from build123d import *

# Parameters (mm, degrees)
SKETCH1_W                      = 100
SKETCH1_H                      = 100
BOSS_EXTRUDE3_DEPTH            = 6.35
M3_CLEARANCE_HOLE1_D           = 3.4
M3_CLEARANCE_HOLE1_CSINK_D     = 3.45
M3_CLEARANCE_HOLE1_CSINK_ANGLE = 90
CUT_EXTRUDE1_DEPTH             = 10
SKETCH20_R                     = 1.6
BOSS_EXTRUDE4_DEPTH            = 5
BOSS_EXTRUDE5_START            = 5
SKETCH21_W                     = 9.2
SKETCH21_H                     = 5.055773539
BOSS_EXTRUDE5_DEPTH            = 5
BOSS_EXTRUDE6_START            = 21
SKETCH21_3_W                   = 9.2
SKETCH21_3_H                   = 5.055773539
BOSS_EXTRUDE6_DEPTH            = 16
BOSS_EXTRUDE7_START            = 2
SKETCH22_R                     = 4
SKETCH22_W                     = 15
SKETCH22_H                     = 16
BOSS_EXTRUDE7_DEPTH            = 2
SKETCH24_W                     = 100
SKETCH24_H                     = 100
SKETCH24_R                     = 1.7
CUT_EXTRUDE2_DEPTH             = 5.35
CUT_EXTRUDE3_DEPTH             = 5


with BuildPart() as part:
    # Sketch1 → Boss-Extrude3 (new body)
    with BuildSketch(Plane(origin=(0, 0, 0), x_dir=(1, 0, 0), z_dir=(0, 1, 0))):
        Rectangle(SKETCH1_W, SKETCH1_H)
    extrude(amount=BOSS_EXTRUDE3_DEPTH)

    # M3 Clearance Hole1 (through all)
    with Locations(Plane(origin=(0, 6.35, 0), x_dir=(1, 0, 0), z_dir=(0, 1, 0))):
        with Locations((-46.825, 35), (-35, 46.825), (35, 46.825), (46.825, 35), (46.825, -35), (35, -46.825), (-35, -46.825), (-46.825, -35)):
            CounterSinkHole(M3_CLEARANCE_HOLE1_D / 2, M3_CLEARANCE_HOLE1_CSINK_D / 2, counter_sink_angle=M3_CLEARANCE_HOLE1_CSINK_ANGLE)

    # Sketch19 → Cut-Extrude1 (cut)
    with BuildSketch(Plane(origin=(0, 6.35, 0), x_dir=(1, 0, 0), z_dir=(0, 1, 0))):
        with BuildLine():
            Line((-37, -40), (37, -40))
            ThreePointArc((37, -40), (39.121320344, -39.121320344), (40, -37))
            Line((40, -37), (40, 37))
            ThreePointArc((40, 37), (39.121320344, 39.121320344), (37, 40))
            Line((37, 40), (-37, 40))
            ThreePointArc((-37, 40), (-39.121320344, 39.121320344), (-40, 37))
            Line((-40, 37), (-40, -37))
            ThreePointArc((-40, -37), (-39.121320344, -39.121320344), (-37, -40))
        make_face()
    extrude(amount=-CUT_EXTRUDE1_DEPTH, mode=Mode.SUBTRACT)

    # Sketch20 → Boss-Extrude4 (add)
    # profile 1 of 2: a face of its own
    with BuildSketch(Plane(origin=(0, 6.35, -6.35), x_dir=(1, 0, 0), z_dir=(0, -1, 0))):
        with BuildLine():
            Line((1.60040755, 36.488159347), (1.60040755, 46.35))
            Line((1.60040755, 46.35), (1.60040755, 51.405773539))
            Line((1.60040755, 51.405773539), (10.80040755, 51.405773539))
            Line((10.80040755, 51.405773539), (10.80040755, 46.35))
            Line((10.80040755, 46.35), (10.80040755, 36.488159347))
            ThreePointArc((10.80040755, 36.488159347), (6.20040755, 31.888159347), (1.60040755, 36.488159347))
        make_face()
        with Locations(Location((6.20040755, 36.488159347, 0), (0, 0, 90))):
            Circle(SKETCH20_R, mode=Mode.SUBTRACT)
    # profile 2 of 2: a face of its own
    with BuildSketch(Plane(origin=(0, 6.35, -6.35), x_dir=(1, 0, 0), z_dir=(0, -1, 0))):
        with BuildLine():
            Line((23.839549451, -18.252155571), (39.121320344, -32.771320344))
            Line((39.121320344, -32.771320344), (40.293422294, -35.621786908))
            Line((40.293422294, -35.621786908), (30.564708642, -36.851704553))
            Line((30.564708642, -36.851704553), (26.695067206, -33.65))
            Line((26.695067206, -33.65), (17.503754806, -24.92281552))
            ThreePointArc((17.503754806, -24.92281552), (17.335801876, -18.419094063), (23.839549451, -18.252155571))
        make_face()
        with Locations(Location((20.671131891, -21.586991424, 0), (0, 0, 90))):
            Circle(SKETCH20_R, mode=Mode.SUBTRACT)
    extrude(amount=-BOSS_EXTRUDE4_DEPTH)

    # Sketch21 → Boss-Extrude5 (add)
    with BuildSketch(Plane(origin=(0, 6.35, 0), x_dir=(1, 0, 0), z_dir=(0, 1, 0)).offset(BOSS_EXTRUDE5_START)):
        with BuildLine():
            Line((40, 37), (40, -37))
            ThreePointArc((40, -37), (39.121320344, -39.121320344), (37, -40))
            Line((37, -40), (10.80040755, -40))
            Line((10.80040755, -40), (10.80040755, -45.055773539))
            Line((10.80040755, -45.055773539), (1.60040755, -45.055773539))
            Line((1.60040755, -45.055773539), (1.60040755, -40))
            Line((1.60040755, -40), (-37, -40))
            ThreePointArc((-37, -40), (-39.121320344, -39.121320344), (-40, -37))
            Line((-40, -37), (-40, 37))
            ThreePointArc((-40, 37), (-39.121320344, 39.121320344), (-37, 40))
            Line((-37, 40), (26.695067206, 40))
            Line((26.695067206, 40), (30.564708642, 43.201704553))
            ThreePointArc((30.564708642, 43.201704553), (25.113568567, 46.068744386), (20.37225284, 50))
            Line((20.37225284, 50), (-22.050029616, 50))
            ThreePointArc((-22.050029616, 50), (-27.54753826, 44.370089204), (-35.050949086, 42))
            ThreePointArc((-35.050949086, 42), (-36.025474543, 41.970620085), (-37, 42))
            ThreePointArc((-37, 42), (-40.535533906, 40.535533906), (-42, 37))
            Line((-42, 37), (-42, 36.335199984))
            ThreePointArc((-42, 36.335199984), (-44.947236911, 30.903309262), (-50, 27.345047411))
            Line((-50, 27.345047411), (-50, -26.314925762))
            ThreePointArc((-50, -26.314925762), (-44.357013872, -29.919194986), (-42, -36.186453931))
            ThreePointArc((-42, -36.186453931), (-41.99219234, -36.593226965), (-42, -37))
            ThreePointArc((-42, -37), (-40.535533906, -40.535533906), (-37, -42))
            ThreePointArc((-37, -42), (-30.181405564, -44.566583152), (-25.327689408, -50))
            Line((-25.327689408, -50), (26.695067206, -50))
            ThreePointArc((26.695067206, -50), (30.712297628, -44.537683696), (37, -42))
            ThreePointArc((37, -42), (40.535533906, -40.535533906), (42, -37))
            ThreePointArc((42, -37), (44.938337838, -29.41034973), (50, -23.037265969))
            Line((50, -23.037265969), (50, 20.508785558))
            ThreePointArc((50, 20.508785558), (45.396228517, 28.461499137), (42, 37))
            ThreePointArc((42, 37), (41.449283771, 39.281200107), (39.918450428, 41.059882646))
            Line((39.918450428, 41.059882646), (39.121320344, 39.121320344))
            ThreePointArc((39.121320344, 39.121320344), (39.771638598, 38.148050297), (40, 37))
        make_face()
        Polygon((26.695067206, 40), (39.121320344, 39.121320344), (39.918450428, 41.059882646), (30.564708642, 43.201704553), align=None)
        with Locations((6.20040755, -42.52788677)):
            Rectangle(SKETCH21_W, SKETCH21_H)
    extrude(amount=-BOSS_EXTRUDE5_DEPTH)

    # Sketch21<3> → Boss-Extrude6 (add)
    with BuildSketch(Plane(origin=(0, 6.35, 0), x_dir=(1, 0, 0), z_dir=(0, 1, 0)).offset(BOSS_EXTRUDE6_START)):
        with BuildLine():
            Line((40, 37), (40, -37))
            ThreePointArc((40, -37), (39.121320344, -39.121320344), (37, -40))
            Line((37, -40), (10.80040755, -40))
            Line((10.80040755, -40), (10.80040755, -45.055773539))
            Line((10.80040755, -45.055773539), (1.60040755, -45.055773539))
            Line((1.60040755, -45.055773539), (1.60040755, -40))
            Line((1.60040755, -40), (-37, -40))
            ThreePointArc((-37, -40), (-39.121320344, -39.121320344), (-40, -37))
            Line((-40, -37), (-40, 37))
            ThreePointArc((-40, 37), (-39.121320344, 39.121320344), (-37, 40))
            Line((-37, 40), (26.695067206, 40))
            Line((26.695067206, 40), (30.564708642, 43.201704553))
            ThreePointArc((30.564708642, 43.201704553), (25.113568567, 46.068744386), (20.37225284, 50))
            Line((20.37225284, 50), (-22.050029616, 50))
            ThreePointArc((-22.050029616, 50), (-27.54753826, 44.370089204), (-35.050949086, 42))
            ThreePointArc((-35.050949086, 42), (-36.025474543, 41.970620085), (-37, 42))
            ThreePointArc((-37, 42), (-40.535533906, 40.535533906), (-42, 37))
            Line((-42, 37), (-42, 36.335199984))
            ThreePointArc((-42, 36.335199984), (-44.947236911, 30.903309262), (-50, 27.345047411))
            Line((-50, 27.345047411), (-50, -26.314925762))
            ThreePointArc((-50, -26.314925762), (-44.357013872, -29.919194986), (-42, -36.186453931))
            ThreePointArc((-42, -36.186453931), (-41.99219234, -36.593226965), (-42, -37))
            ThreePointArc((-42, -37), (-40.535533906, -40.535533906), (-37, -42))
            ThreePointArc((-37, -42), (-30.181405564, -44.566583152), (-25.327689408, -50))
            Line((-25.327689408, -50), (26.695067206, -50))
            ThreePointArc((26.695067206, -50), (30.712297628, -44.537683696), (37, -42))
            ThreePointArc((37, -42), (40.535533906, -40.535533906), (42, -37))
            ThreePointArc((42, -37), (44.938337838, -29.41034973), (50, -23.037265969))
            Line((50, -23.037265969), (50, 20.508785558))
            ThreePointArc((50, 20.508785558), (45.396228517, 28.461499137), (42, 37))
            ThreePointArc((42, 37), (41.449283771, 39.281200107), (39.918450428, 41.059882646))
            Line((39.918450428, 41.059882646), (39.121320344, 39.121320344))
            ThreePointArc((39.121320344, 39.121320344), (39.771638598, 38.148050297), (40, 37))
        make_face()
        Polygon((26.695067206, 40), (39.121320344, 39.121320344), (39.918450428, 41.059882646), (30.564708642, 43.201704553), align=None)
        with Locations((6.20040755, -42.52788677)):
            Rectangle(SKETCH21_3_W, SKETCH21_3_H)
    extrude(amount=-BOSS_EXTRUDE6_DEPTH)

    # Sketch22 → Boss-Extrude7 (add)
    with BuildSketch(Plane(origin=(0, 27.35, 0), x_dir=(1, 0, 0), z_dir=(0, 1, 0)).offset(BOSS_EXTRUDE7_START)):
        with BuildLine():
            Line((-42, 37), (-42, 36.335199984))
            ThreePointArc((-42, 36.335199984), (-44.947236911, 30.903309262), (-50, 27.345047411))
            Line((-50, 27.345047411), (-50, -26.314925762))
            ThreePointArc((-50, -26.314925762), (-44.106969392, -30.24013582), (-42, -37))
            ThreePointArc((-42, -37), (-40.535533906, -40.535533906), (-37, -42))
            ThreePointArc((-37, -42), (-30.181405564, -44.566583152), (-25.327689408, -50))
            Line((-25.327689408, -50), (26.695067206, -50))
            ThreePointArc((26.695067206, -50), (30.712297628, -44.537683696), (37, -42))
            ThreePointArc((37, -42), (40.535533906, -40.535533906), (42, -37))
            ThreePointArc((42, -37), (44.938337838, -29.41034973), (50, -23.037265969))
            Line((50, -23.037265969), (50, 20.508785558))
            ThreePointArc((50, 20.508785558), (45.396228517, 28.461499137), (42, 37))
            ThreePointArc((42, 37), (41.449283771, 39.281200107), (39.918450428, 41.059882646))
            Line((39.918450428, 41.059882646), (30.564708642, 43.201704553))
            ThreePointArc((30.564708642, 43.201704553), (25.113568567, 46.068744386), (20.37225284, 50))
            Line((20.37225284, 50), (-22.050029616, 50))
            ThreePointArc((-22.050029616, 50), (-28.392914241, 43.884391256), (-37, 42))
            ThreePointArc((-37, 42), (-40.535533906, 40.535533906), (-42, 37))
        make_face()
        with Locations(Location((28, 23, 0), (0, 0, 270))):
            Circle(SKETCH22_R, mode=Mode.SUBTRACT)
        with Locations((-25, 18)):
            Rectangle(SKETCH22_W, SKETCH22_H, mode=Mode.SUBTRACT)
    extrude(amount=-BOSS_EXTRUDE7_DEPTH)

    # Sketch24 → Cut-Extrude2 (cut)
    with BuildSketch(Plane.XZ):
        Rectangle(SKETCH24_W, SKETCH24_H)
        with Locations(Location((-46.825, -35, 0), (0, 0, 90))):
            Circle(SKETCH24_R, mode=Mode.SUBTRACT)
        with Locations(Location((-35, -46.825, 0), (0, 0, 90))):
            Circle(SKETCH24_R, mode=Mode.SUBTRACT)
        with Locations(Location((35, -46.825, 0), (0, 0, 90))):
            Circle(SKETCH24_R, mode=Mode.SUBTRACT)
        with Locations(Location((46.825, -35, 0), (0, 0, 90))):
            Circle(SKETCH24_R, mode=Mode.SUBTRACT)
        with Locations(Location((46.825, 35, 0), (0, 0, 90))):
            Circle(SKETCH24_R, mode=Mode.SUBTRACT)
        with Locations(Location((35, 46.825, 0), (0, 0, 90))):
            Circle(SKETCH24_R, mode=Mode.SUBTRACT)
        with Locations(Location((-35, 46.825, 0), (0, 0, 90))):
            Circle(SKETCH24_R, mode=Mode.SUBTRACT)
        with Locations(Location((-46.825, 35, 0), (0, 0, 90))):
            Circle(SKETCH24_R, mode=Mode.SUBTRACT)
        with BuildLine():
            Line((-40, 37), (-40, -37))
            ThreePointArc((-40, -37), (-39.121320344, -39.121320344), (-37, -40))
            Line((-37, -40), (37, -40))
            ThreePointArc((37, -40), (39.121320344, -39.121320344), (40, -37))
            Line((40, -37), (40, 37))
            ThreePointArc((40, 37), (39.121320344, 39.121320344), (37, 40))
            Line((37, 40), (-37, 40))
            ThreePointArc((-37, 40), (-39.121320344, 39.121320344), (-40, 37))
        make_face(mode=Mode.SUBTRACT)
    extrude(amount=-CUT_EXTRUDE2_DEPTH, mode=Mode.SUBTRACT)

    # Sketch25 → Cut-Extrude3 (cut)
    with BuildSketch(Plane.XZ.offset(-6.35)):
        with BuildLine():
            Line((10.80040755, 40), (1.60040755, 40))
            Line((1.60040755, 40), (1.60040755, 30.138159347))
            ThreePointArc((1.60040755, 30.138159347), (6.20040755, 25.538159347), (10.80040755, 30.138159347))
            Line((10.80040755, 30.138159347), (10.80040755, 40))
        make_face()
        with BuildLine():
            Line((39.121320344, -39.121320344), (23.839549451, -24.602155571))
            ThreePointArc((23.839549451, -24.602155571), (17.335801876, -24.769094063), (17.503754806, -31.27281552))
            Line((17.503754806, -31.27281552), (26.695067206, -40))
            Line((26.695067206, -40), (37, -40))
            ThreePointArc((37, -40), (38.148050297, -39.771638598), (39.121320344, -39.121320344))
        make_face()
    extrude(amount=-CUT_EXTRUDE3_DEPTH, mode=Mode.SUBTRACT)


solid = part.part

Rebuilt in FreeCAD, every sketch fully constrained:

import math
import FreeCAD as App
import Part
import Sketcher

V = App.Vector
Q = App.Units.Quantity


def add_polygon(sketch, points):
    """Adds a closed chain of lines whose ends are joined by coincident constraints."""
    first, n = sketch.GeometryCount, len(points)
    for a, b in zip(points, points[1:] + points[:1]):
        sketch.addGeometry(Part.LineSegment(App.Vector(*a, 0), App.Vector(*b, 0)), False)
    for i in range(n):
        sketch.addConstraint(Sketcher.Constraint("Coincident", first + i, 2, first + (i + 1) % n, 1))

doc = App.newDocument("Part")
body = doc.addObject("PartDesign::Body", "Body")

# Sketch on XZ plane
sketch1 = body.newObject("Sketcher::SketchObject", "Sketch")
sketch1.AttachmentSupport = (doc.getObject("XZ_Plane"), [""])
sketch1.MapMode = "FlatFace"
add_polygon(sketch1, [(-50, -50), (-50, 50), (50, 50), (50, -50)])  # lines 0-3
sketch1.addConstraint([
    Sketcher.Constraint("Vertical", 0),
    Sketcher.Constraint("Horizontal", 1),
    Sketcher.Constraint("Vertical", 2),
    Sketcher.Constraint("Horizontal", 3),
    Sketcher.Constraint("Symmetric", 0, 2, 2, 2, -1, 1),
    Sketcher.Constraint("Equal", 3, 0),
    Sketcher.Constraint("DistanceX", 1, 1, 1, 2, Q("100 mm")),
])
pad1 = body.newObject("PartDesign::Pad", "Pad")
pad1.Profile = sketch1
pad1.Length = 6.35
pad1.Reversed = True

# Sketch on XZ plane
sketch2 = body.newObject("Sketcher::SketchObject", "Sketch001")
sketch2.AttachmentSupport = (doc.getObject("XZ_Plane"), [""])
sketch2.MapMode = "FlatFace"
sketch2.AttachmentOffset = App.Placement(V(0, 0, -6.35), App.Rotation())
sketch2.addGeometry([
    Part.Circle(V(-46.8, -35, 0), V(0, 0, 1), 1.7),  # 0
    Part.Circle(V(-35, -46.8, 0), V(0, 0, 1), 1.7),  # 1
    Part.Circle(V(35, -46.8, 0), V(0, 0, 1), 1.7),  # 2
    Part.Circle(V(46.8, -35, 0), V(0, 0, 1), 1.7),  # 3
    Part.Circle(V(46.8, 35, 0), V(0, 0, 1), 1.7),  # 4
    Part.Circle(V(35, 46.8, 0), V(0, 0, 1), 1.7),  # 5
    Part.Circle(V(-35, 46.8, 0), V(0, 0, 1), 1.7),  # 6
    Part.Circle(V(-46.8, 35, 0), V(0, 0, 1), 1.7),  # 7
], False)
sketch2.addConstraint([
    Sketcher.Constraint("Equal", 0, 1),
    Sketcher.Constraint("Equal", 1, 2),
    Sketcher.Constraint("Equal", 2, 3),
    Sketcher.Constraint("Equal", 3, 4),
    Sketcher.Constraint("Equal", 4, 5),
    Sketcher.Constraint("Equal", 5, 6),
    Sketcher.Constraint("Equal", 6, 7),
    Sketcher.Constraint("Symmetric", 0, 3, 4, 3, -1, 1),
    Sketcher.Constraint("Symmetric", 1, 3, 5, 3, -1, 1),
    Sketcher.Constraint("Symmetric", 2, 3, 6, 3, -1, 1),
    Sketcher.Constraint("Symmetric", 3, 3, 7, 3, -1, 1),
    Sketcher.Constraint("Symmetric", 1, 3, 2, 3, -2),
    Sketcher.Constraint("Symmetric", 0, 3, 3, 3, -2),
    Sketcher.Constraint("Diameter", 0, Q("3.4 mm")),
    Sketcher.Constraint("DistanceY", 0, 3, -1, 1, Q("35 mm")),
    Sketcher.Constraint("DistanceX", 1, 3, -1, 1, Q("35 mm")),
    Sketcher.Constraint("DistanceX", 0, 3, 3, 3, Q("93.65 mm")),
    Sketcher.Constraint("DistanceY", 2, 3, 5, 3, Q("93.65 mm")),
])
doc.recompute()
hole = body.newObject("PartDesign::Hole", "Hole")
hole.Profile = sketch2
hole.ThreadType = "None"
hole.Diameter = 3.4
hole.DepthType = "ThroughAll"
hole.HoleCutType = "Countersink"
hole.HoleCutDiameter = 3.45
hole.HoleCutCountersinkAngle = 90
hole.Reversed = True

# Sketch on XZ plane
sketch3 = body.newObject("Sketcher::SketchObject", "Sketch002")
sketch3.AttachmentSupport = (doc.getObject("XZ_Plane"), [""])
sketch3.MapMode = "FlatFace"
sketch3.AttachmentOffset = App.Placement(V(0, 0, -6.35), App.Rotation())
sketch3.addGeometry([
    Part.LineSegment(V(-37, 40, 0), V(37, 40, 0)),  # 0
    Part.ArcOfCircle(Part.Circle(V(37, 37, 0), V(0, 0, 1), 3), math.radians(0), math.radians(90)),  # 1
    Part.LineSegment(V(40, 37, 0), V(40, -37, 0)),  # 2
    Part.ArcOfCircle(Part.Circle(V(37, -37, 0), V(0, 0, 1), 3), math.radians(-90), math.radians(0)),  # 3
    Part.LineSegment(V(37, -40, 0), V(-37, -40, 0)),  # 4
    Part.ArcOfCircle(Part.Circle(V(-37, -37, 0), V(0, 0, 1), 3), math.radians(180), math.radians(270)),  # 5
    Part.LineSegment(V(-40, -37, 0), V(-40, 37, 0)),  # 6
    Part.ArcOfCircle(Part.Circle(V(-37, 37, 0), V(0, 0, 1), 3), math.radians(90), math.radians(180)),  # 7
], False)
sketch3.addConstraint([
    Sketcher.Constraint("Tangent", 0, 2, 1, 2),
    Sketcher.Constraint("Tangent", 1, 1, 2, 1),
    Sketcher.Constraint("Tangent", 2, 2, 3, 2),
    Sketcher.Constraint("Tangent", 3, 1, 4, 1),
    Sketcher.Constraint("Tangent", 4, 2, 5, 2),
    Sketcher.Constraint("Tangent", 5, 1, 6, 1),
    Sketcher.Constraint("Tangent", 6, 2, 7, 2),
    Sketcher.Constraint("Tangent", 7, 1, 0, 1),
    Sketcher.Constraint("Horizontal", 0),
    Sketcher.Constraint("Vertical", 2),
    Sketcher.Constraint("Horizontal", 4),
    Sketcher.Constraint("Vertical", 6),
    Sketcher.Constraint("Equal", 1, 3),
    Sketcher.Constraint("Equal", 3, 5),
    Sketcher.Constraint("Equal", 5, 7),
    Sketcher.Constraint("Symmetric", 1, 3, 5, 3, -1, 1),
    Sketcher.Constraint("Equal", 4, 2),
    Sketcher.Constraint("Radius", 1, Q("3 mm")),
    Sketcher.Constraint("DistanceX", 0, 1, 0, 2, Q("74 mm")),
])
pocket1 = body.newObject("PartDesign::Pocket", "Pocket")
pocket1.Profile = sketch3
pocket1.Length = 10
pocket1.Reversed = True

# Sketch on XZ plane
sketch4 = body.newObject("Sketcher::SketchObject", "Sketch003")
sketch4.AttachmentSupport = (doc.getObject("XZ_Plane"), [""])
sketch4.MapMode = "FlatFace"
sketch4.AttachmentOffset = App.Placement(V(0, 0, -6.35), App.Rotation())
sketch4.addGeometry([
    Part.LineSegment(V(1.6, 45.1, 0), V(1.6, 30.1, 0)),  # 0
    Part.ArcOfCircle(Part.Circle(V(6.2, 30.1, 0), V(0, 0, 1), 4.6), math.radians(180), math.radians(360)),  # 1
    Part.LineSegment(V(10.8, 30.1, 0), V(10.8, 45.1, 0)),  # 2
    Part.LineSegment(V(10.8, 45.1, 0), V(1.6, 45.1, 0)),  # 3
    Part.Circle(V(6.2, 30.1, 0), V(0, 0, 1), 1.6),  # 4
    Part.LineSegment(V(39.1, -39.1, 0), V(23.8, -24.6, 0)),  # 5
    Part.ArcOfCircle(Part.Circle(V(20.7, -27.9, 0), V(0, 0, 1), 4.6), math.radians(46), math.radians(226)),  # 6
    Part.LineSegment(V(17.5, -31.3, 0), V(26.7, -40, 0)),  # 7
    Part.LineSegment(V(26.7, -40, 0), V(30.6, -43.2, 0)),  # 8
    Part.LineSegment(V(30.6, -43.2, 0), V(40.3, -42, 0)),  # 9
    Part.LineSegment(V(40.3, -42, 0), V(39.1, -39.1, 0)),  # 10
    Part.Circle(V(20.7, -27.9, 0), V(0, 0, 1), 1.6),  # 11
], False)
sketch4.addConstraint([
    Sketcher.Constraint("Tangent", 0, 2, 1, 1),
    Sketcher.Constraint("Tangent", 1, 2, 2, 1),
    Sketcher.Constraint("Coincident", 2, 2, 3, 1),
    Sketcher.Constraint("Coincident", 3, 2, 0, 1),
    Sketcher.Constraint("Tangent", 5, 2, 6, 1),
    Sketcher.Constraint("Tangent", 6, 2, 7, 1),
    Sketcher.Constraint("Coincident", 7, 2, 8, 1),
    Sketcher.Constraint("Coincident", 8, 2, 9, 1),
    Sketcher.Constraint("Coincident", 9, 2, 10, 1),
    Sketcher.Constraint("Coincident", 10, 2, 5, 1),
    Sketcher.Constraint("Vertical", 0),
    Sketcher.Constraint("Vertical", 2),
    Sketcher.Constraint("Horizontal", 3),
    Sketcher.Constraint("Coincident", 4, 3, 1, 3),
    Sketcher.Constraint("Coincident", 11, 3, 6, 3),
    Sketcher.Constraint("Equal", 1, 6),
    Sketcher.Constraint("Equal", 4, 11),
    Sketcher.Constraint("Diameter", 4, Q("3.2 mm")),
    Sketcher.Constraint("Radius", 1, Q("4.6 mm")),
    Sketcher.Constraint("DistanceY", 7, 2, -1, 1, Q("40 mm")),
    Sketcher.Constraint("DistanceX", 10, 2, 9, 2, Q("1.172102 mm")),
    Sketcher.Constraint("Distance", 7, Q("12.67454 mm")),
    Sketcher.Constraint("Distance", 9, Q("9.806149 mm")),
    Sketcher.Constraint("Distance", 10, Q("3.082042 mm")),
    Sketcher.Constraint("DistanceY", 0, 2, 0, 1, Q("14.917614 mm")),
    Sketcher.Constraint("DistanceY", -1, 1, 1, 3, Q("30.138159 mm")),
    Sketcher.Constraint("DistanceX", -1, 1, 6, 3, Q("20.671132 mm")),
    Sketcher.Constraint("DistanceY", 6, 3, -1, 1, Q("27.936991 mm")),
    Sketcher.Constraint("DistanceX", -1, 1, 5, 2, Q("23.839549 mm")),
    Sketcher.Constraint("DistanceX", -1, 1, 8, 2, Q("30.564709 mm")),
    Sketcher.Constraint("DistanceX", -1, 1, 10, 2, Q("39.12132 mm")),
    Sketcher.Constraint("DistanceX", 1, 2, 5, 2, Q("13.039142 mm")),
])
pad2 = body.newObject("PartDesign::Pad", "Pad001")
pad2.Profile = sketch4
pad2.Length = 5
pad2.Reversed = True

# Sketch on XZ plane
sketch5 = body.newObject("Sketcher::SketchObject", "Sketch004")
sketch5.AttachmentSupport = (doc.getObject("XZ_Plane"), [""])
sketch5.MapMode = "FlatFace"
sketch5.AttachmentOffset = App.Placement(V(0, 0, -11.35), App.Rotation())
sketch5.addGeometry([
    Part.ArcOfCircle(Part.Circle(V(41.6, -70.7, 0), V(0, 0, 1), 29.7), math.radians(112), math.radians(136)),  # 0
    Part.LineSegment(V(20.4, -50, 0), V(-22.1, -50, 0)),  # 1
    Part.ArcOfCircle(Part.Circle(V(-36, -58.1, 0), V(0, 0, 1), 16.2), math.radians(30), math.radians(87)),  # 2
    Part.ArcOfCircle(Part.Circle(V(-36, -58.1, 0), V(0, 0, 1), 16.2), math.radians(86.55), math.radians(93.45)),  # 3
    Part.ArcOfCircle(Part.Circle(V(-37, -37, 0), V(0, 0, 1), 5), math.radians(180), math.radians(270)),  # 4
    Part.LineSegment(V(-42, -37, 0), V(-42, -36.3, 0)),  # 5
    Part.ArcOfCircle(Part.Circle(V(-55.1, -39.9, 0), V(0, 0, 1), 13.6), math.radians(15), math.radians(68)),  # 6
    Part.LineSegment(V(-50, -27.3, 0), V(-50, 26.3, 0)),  # 7
    Part.ArcOfCircle(Part.Circle(V(-52.6, 36.6, 0), V(0, 0, 1), 10.6), math.radians(-76), math.radians(-2)),  # 8
    Part.ArcOfCircle(Part.Circle(V(-52.6, 36.6, 0), V(0, 0, 1), 10.6), math.radians(-2.2), math.radians(2.2)),  # 9
    Part.ArcOfCircle(Part.Circle(V(-37, 37, 0), V(0, 0, 1), 5), math.radians(90), math.radians(180)),  # 10
    Part.ArcOfCircle(Part.Circle(V(-38.8, 57.2, 0), V(0, 0, 1), 15.3), math.radians(-83), math.radians(-28)),  # 11
    Part.LineSegment(V(-25.3, 50, 0), V(26.7, 50, 0)),  # 12
    Part.ArcOfCircle(Part.Circle(V(38.3, 54.3, 0), V(0, 0, 1), 12.4), math.radians(-160), math.radians(-96)),  # 13
    Part.ArcOfCircle(Part.Circle(V(37, 37, 0), V(0, 0, 1), 5), math.radians(0), math.radians(90)),  # 14
    Part.ArcOfCircle(Part.Circle(V(68.4, 42.9, 0), V(0, 0, 1), 27.1), math.radians(-167), math.radians(-133)),  # 15
    Part.LineSegment(V(50, 23, 0), V(50, -20.5, 0)),  # 16
    Part.ArcOfCircle(Part.Circle(V(102, -55.9, 0), V(0, 0, 1), 62.9), math.radians(145.75), math.radians(162.5)),  # 17
    Part.ArcOfCircle(Part.Circle(V(37, -37, 0), V(0, 0, 1), 5), math.radians(-54), math.radians(0)),  # 18
    Part.LineSegment(V(39.9, -41.1, 0), V(30.6, -43.2, 0)),  # 19
    Part.LineSegment(V(40, -37, 0), V(40, 37, 0)),  # 20
    Part.ArcOfCircle(Part.Circle(V(37, 37, 0), V(0, 0, 1), 3), math.radians(0), math.radians(90)),  # 21
    Part.LineSegment(V(37, 40, 0), V(10.8, 40, 0)),  # 22
    Part.LineSegment(V(10.8, 40, 0), V(1.6, 40, 0)),  # 23
    Part.LineSegment(V(1.6, 40, 0), V(-37, 40, 0)),  # 24
    Part.ArcOfCircle(Part.Circle(V(-37, 37, 0), V(0, 0, 1), 3), math.radians(90), math.radians(180)),  # 25
    Part.LineSegment(V(-40, 37, 0), V(-40, -37, 0)),  # 26
    Part.ArcOfCircle(Part.Circle(V(-37, -37, 0), V(0, 0, 1), 3), math.radians(180), math.radians(270)),  # 27
    Part.LineSegment(V(-37, -40, 0), V(26.7, -40, 0)),  # 28
    Part.LineSegment(V(26.7, -40, 0), V(39.1, -39.1, 0)),  # 29
    Part.ArcOfCircle(Part.Circle(V(37, -37, 0), V(0, 0, 1), 3), math.radians(-45), math.radians(0)),  # 30
], False)
sketch5.addConstraint([
    Sketcher.Constraint("Coincident", 0, 2, 1, 1),
    Sketcher.Constraint("Coincident", 1, 2, 2, 1),
    Sketcher.Constraint("Tangent", 2, 2, 3, 1),
    Sketcher.Constraint("Coincident", 3, 2, 4, 2),
    Sketcher.Constraint("Tangent", 4, 1, 5, 1),
    Sketcher.Constraint("Coincident", 5, 2, 6, 1),
    Sketcher.Constraint("Coincident", 6, 2, 7, 1),
    Sketcher.Constraint("Coincident", 7, 2, 8, 1),
    Sketcher.Constraint("Tangent", 8, 2, 9, 1),
    Sketcher.Constraint("Coincident", 9, 2, 10, 2),
    Sketcher.Constraint("Coincident", 10, 1, 11, 1),
    Sketcher.Constraint("Coincident", 11, 2, 12, 1),
    Sketcher.Constraint("Coincident", 12, 2, 13, 1),
    Sketcher.Constraint("Coincident", 13, 2, 14, 2),
    Sketcher.Constraint("Coincident", 14, 1, 15, 1),
    Sketcher.Constraint("Coincident", 15, 2, 16, 1),
    Sketcher.Constraint("Coincident", 16, 2, 17, 1),
    Sketcher.Constraint("Coincident", 17, 2, 18, 2),
    Sketcher.Constraint("Coincident", 18, 1, 19, 1),
    Sketcher.Constraint("Coincident", 19, 2, 0, 1),
    Sketcher.Constraint("Tangent", 20, 2, 21, 1),
    Sketcher.Constraint("Tangent", 21, 2, 22, 1),
    Sketcher.Constraint("Coincident", 22, 2, 23, 1),
    Sketcher.Constraint("Coincident", 23, 2, 24, 1),
    Sketcher.Constraint("Tangent", 24, 2, 25, 1),
    Sketcher.Constraint("Tangent", 25, 2, 26, 1),
    Sketcher.Constraint("Tangent", 26, 2, 27, 1),
    Sketcher.Constraint("Tangent", 27, 2, 28, 1),
    Sketcher.Constraint("Coincident", 28, 2, 29, 1),
    Sketcher.Constraint("Coincident", 29, 2, 30, 1),
    Sketcher.Constraint("Tangent", 30, 2, 20, 1),
    Sketcher.Constraint("Horizontal", 1),
    Sketcher.Constraint("Vertical", 5),
    Sketcher.Constraint("Vertical", 7),
    Sketcher.Constraint("Horizontal", 12),
    Sketcher.Constraint("Vertical", 16),
    Sketcher.Constraint("Vertical", 20),
    Sketcher.Constraint("Horizontal", 22),
    Sketcher.Constraint("Horizontal", 23),
    Sketcher.Constraint("Horizontal", 24),
    Sketcher.Constraint("Vertical", 26),
    Sketcher.Constraint("Horizontal", 28),
    Sketcher.Constraint("Coincident", 21, 3, 14, 3),
    Sketcher.Constraint("Coincident", 25, 3, 10, 3),
    Sketcher.Constraint("Coincident", 27, 3, 4, 3),
    Sketcher.Constraint("Coincident", 30, 3, 18, 3),
    Sketcher.Constraint("Equal", 2, 3),
    Sketcher.Constraint("Equal", 8, 9),
    Sketcher.Constraint("Equal", 4, 10),
    Sketcher.Constraint("Equal", 10, 14),
    Sketcher.Constraint("Equal", 14, 18),
    Sketcher.Constraint("Equal", 21, 25),
    Sketcher.Constraint("Equal", 25, 27),
    Sketcher.Constraint("Equal", 27, 30),
    Sketcher.Constraint("Symmetric", 4, 3, 14, 3, -1, 1),
    Sketcher.Constraint("Horizontal", 4, 3, 18, 3),
    Sketcher.Constraint("Horizontal", 2, 2, 3, 2),
    Sketcher.Constraint("Horizontal", 25, 3, 9, 2),
    Sketcher.Constraint("Horizontal", 9, 2, 14, 1),
    Sketcher.Constraint("Horizontal", 4, 1, 17, 2),
    Sketcher.Constraint("Vertical", 27, 3, 3, 2),
    Sketcher.Constraint("Vertical", 5, 2, 8, 2),
    Sketcher.Constraint("Vertical", 3, 2, 10, 1),
    Sketcher.Constraint("Vertical", 30, 3, 13, 2),
    Sketcher.Constraint("Vertical", 12, 2, 28, 2),
    Sketcher.Constraint("Radius", 4, Q("5 mm")),
    Sketcher.Constraint("Radius", 21, Q("3 mm")),
    Sketcher.Constraint("DistanceY", 20, 1, 20, 2, Q("74 mm")),
    Sketcher.Constraint("DistanceX", 23, 2, 23, 1, Q("9.2 mm")),
    Sketcher.Constraint("DistanceX", 4, 3, -1, 1, Q("37 mm")),
    Sketcher.Constraint("DistanceY", 0, 2, -1, 1, Q("50 mm")),
    Sketcher.Constraint("DistanceX", 6, 2, -1, 1, Q("50 mm")),
    Sketcher.Constraint("DistanceY", -1, 1, 11, 2, Q("50 mm")),
    Sketcher.Constraint("DistanceX", -1, 1, 15, 2, Q("50 mm")),
    Sketcher.Constraint("Radius", 17, Q("62.915299 mm")),
    Sketcher.Constraint("Radius", 0, Q("29.654651 mm")),
    Sketcher.Constraint("Radius", 2, Q("16.17709 mm")),
    Sketcher.Constraint("Radius", 13, Q("12.417291 mm")),
    Sketcher.Constraint("DistanceY", 5, 1, 5, 2, Q("0.6648 mm")),
    Sketcher.Constraint("Radius", 6, Q("13.550528 mm")),
    Sketcher.Constraint("Radius", 8, Q("10.600183 mm")),
    Sketcher.Constraint("Radius", 11, Q("15.272548 mm")),
    Sketcher.Constraint("Radius", 15, Q("27.066848 mm")),
    Sketcher.Constraint("DistanceY", 16, 2, 16, 1, Q("43.546052 mm")),
    Sketcher.Constraint("DistanceX", -1, 1, 15, 3, Q("68.423498 mm")),
    Sketcher.Constraint("DistanceX", 8, 3, 3, 3, Q("16.566901 mm")),
    Sketcher.Constraint("DistanceY", 7, 2, 8, 3, Q("10.278301 mm")),
    Sketcher.Constraint("Distance", 29, Q("12.457281 mm")),
    Sketcher.Constraint("DistanceX", 1, 2, 1, 1, Q("42.422282 mm")),
    Sketcher.Constraint("DistanceX", 12, 1, 12, 2, Q("52.022757 mm")),
    Sketcher.Constraint("DistanceX", 22, 2, 22, 1, Q("26.199592 mm")),
    Sketcher.Constraint("DistanceX", 28, 1, 28, 2, Q("63.695067 mm")),
    Sketcher.Constraint("DistanceY", 7, 1, 7, 2, Q("53.659973 mm")),
    Sketcher.Constraint("DistanceX", -1, 1, 0, 3, Q("41.56858 mm")),
    Sketcher.Constraint("DistanceX", -1, 1, 18, 1, Q("39.91845 mm")),
    Sketcher.Constraint("DistanceX", -1, 1, 19, 2, Q("30.564709 mm")),
])
pad3 = body.newObject("PartDesign::Pad", "Pad002")
pad3.Profile = sketch5
pad3.Length = 5

# Sketch on XZ plane
sketch6 = body.newObject("Sketcher::SketchObject", "Sketch005")
sketch6.AttachmentSupport = (doc.getObject("XZ_Plane"), [""])
sketch6.MapMode = "FlatFace"
sketch6.AttachmentOffset = App.Placement(V(0, 0, -27.35), App.Rotation())
sketch6.addGeometry([
    Part.ArcOfCircle(Part.Circle(V(41.6, -70.7, 0), V(0, 0, 1), 29.7), math.radians(112), math.radians(136)),  # 0
    Part.LineSegment(V(20.4, -50, 0), V(-22.1, -50, 0)),  # 1
    Part.ArcOfCircle(Part.Circle(V(-36, -58.1, 0), V(0, 0, 1), 16.2), math.radians(30), math.radians(87)),  # 2
    Part.ArcOfCircle(Part.Circle(V(-36, -58.1, 0), V(0, 0, 1), 16.2), math.radians(86.55), math.radians(93.45)),  # 3
    Part.ArcOfCircle(Part.Circle(V(-37, -37, 0), V(0, 0, 1), 5), math.radians(180), math.radians(270)),  # 4
    Part.LineSegment(V(-42, -37, 0), V(-42, -36.3, 0)),  # 5
    Part.ArcOfCircle(Part.Circle(V(-55.1, -39.9, 0), V(0, 0, 1), 13.6), math.radians(15), math.radians(68)),  # 6
    Part.LineSegment(V(-50, -27.3, 0), V(-50, 26.3, 0)),  # 7
    Part.ArcOfCircle(Part.Circle(V(-52.6, 36.6, 0), V(0, 0, 1), 10.6), math.radians(-76), math.radians(-2)),  # 8
    Part.ArcOfCircle(Part.Circle(V(-52.6, 36.6, 0), V(0, 0, 1), 10.6), math.radians(-2.2), math.radians(2.2)),  # 9
    Part.ArcOfCircle(Part.Circle(V(-37, 37, 0), V(0, 0, 1), 5), math.radians(90), math.radians(180)),  # 10
    Part.ArcOfCircle(Part.Circle(V(-38.8, 57.2, 0), V(0, 0, 1), 15.3), math.radians(-83), math.radians(-28)),  # 11
    Part.LineSegment(V(-25.3, 50, 0), V(26.7, 50, 0)),  # 12
    Part.ArcOfCircle(Part.Circle(V(38.3, 54.3, 0), V(0, 0, 1), 12.4), math.radians(-160), math.radians(-96)),  # 13
    Part.ArcOfCircle(Part.Circle(V(37, 37, 0), V(0, 0, 1), 5), math.radians(0), math.radians(90)),  # 14
    Part.ArcOfCircle(Part.Circle(V(68.4, 42.9, 0), V(0, 0, 1), 27.1), math.radians(-167), math.radians(-133)),  # 15
    Part.LineSegment(V(50, 23, 0), V(50, -20.5, 0)),  # 16
    Part.ArcOfCircle(Part.Circle(V(102, -55.9, 0), V(0, 0, 1), 62.9), math.radians(145.75), math.radians(162.5)),  # 17
    Part.ArcOfCircle(Part.Circle(V(37, -37, 0), V(0, 0, 1), 5), math.radians(-54), math.radians(0)),  # 18
    Part.LineSegment(V(39.9, -41.1, 0), V(30.6, -43.2, 0)),  # 19
    Part.LineSegment(V(40, -37, 0), V(40, 37, 0)),  # 20
    Part.ArcOfCircle(Part.Circle(V(37, 37, 0), V(0, 0, 1), 3), math.radians(0), math.radians(90)),  # 21
    Part.LineSegment(V(37, 40, 0), V(10.8, 40, 0)),  # 22
    Part.LineSegment(V(10.8, 40, 0), V(1.6, 40, 0)),  # 23
    Part.LineSegment(V(1.6, 40, 0), V(-37, 40, 0)),  # 24
    Part.ArcOfCircle(Part.Circle(V(-37, 37, 0), V(0, 0, 1), 3), math.radians(90), math.radians(180)),  # 25
    Part.LineSegment(V(-40, 37, 0), V(-40, -37, 0)),  # 26
    Part.ArcOfCircle(Part.Circle(V(-37, -37, 0), V(0, 0, 1), 3), math.radians(180), math.radians(270)),  # 27
    Part.LineSegment(V(-37, -40, 0), V(26.7, -40, 0)),  # 28
    Part.LineSegment(V(26.7, -40, 0), V(39.1, -39.1, 0)),  # 29
    Part.ArcOfCircle(Part.Circle(V(37, -37, 0), V(0, 0, 1), 3), math.radians(-45), math.radians(0)),  # 30
], False)
sketch6.addConstraint([
    Sketcher.Constraint("Coincident", 0, 2, 1, 1),
    Sketcher.Constraint("Coincident", 1, 2, 2, 1),
    Sketcher.Constraint("Tangent", 2, 2, 3, 1),
    Sketcher.Constraint("Coincident", 3, 2, 4, 2),
    Sketcher.Constraint("Tangent", 4, 1, 5, 1),
    Sketcher.Constraint("Coincident", 5, 2, 6, 1),
    Sketcher.Constraint("Coincident", 6, 2, 7, 1),
    Sketcher.Constraint("Coincident", 7, 2, 8, 1),
    Sketcher.Constraint("Tangent", 8, 2, 9, 1),
    Sketcher.Constraint("Coincident", 9, 2, 10, 2),
    Sketcher.Constraint("Coincident", 10, 1, 11, 1),
    Sketcher.Constraint("Coincident", 11, 2, 12, 1),
    Sketcher.Constraint("Coincident", 12, 2, 13, 1),
    Sketcher.Constraint("Coincident", 13, 2, 14, 2),
    Sketcher.Constraint("Coincident", 14, 1, 15, 1),
    Sketcher.Constraint("Coincident", 15, 2, 16, 1),
    Sketcher.Constraint("Coincident", 16, 2, 17, 1),
    Sketcher.Constraint("Coincident", 17, 2, 18, 2),
    Sketcher.Constraint("Coincident", 18, 1, 19, 1),
    Sketcher.Constraint("Coincident", 19, 2, 0, 1),
    Sketcher.Constraint("Tangent", 20, 2, 21, 1),
    Sketcher.Constraint("Tangent", 21, 2, 22, 1),
    Sketcher.Constraint("Coincident", 22, 2, 23, 1),
    Sketcher.Constraint("Coincident", 23, 2, 24, 1),
    Sketcher.Constraint("Tangent", 24, 2, 25, 1),
    Sketcher.Constraint("Tangent", 25, 2, 26, 1),
    Sketcher.Constraint("Tangent", 26, 2, 27, 1),
    Sketcher.Constraint("Tangent", 27, 2, 28, 1),
    Sketcher.Constraint("Coincident", 28, 2, 29, 1),
    Sketcher.Constraint("Coincident", 29, 2, 30, 1),
    Sketcher.Constraint("Tangent", 30, 2, 20, 1),
    Sketcher.Constraint("Horizontal", 1),
    Sketcher.Constraint("Vertical", 5),
    Sketcher.Constraint("Vertical", 7),
    Sketcher.Constraint("Horizontal", 12),
    Sketcher.Constraint("Vertical", 16),
    Sketcher.Constraint("Vertical", 20),
    Sketcher.Constraint("Horizontal", 22),
    Sketcher.Constraint("Horizontal", 23),
    Sketcher.Constraint("Horizontal", 24),
    Sketcher.Constraint("Vertical", 26),
    Sketcher.Constraint("Horizontal", 28),
    Sketcher.Constraint("Coincident", 21, 3, 14, 3),
    Sketcher.Constraint("Coincident", 25, 3, 10, 3),
    Sketcher.Constraint("Coincident", 27, 3, 4, 3),
    Sketcher.Constraint("Coincident", 30, 3, 18, 3),
    Sketcher.Constraint("Equal", 2, 3),
    Sketcher.Constraint("Equal", 8, 9),
    Sketcher.Constraint("Equal", 4, 10),
    Sketcher.Constraint("Equal", 10, 14),
    Sketcher.Constraint("Equal", 14, 18),
    Sketcher.Constraint("Equal", 21, 25),
    Sketcher.Constraint("Equal", 25, 27),
    Sketcher.Constraint("Equal", 27, 30),
    Sketcher.Constraint("Symmetric", 4, 3, 14, 3, -1, 1),
    Sketcher.Constraint("Horizontal", 4, 3, 18, 3),
    Sketcher.Constraint("Horizontal", 2, 2, 3, 2),
    Sketcher.Constraint("Horizontal", 25, 3, 9, 2),
    Sketcher.Constraint("Horizontal", 9, 2, 14, 1),
    Sketcher.Constraint("Horizontal", 4, 1, 17, 2),
    Sketcher.Constraint("Vertical", 27, 3, 3, 2),
    Sketcher.Constraint("Vertical", 5, 2, 8, 2),
    Sketcher.Constraint("Vertical", 3, 2, 10, 1),
    Sketcher.Constraint("Vertical", 30, 3, 13, 2),
    Sketcher.Constraint("Vertical", 12, 2, 28, 2),
    Sketcher.Constraint("Radius", 4, Q("5 mm")),
    Sketcher.Constraint("Radius", 21, Q("3 mm")),
    Sketcher.Constraint("DistanceY", 20, 1, 20, 2, Q("74 mm")),
    Sketcher.Constraint("DistanceX", 23, 2, 23, 1, Q("9.2 mm")),
    Sketcher.Constraint("DistanceX", 4, 3, -1, 1, Q("37 mm")),
    Sketcher.Constraint("DistanceY", 0, 2, -1, 1, Q("50 mm")),
    Sketcher.Constraint("DistanceX", 6, 2, -1, 1, Q("50 mm")),
    Sketcher.Constraint("DistanceY", -1, 1, 11, 2, Q("50 mm")),
    Sketcher.Constraint("DistanceX", -1, 1, 15, 2, Q("50 mm")),
    Sketcher.Constraint("Radius", 17, Q("62.915299 mm")),
    Sketcher.Constraint("Radius", 0, Q("29.654651 mm")),
    Sketcher.Constraint("Radius", 2, Q("16.17709 mm")),
    Sketcher.Constraint("Radius", 13, Q("12.417291 mm")),
    Sketcher.Constraint("DistanceY", 5, 1, 5, 2, Q("0.6648 mm")),
    Sketcher.Constraint("Radius", 6, Q("13.550528 mm")),
    Sketcher.Constraint("Radius", 8, Q("10.600183 mm")),
    Sketcher.Constraint("Radius", 11, Q("15.272548 mm")),
    Sketcher.Constraint("Radius", 15, Q("27.066848 mm")),
    Sketcher.Constraint("DistanceY", 16, 2, 16, 1, Q("43.546052 mm")),
    Sketcher.Constraint("DistanceX", -1, 1, 15, 3, Q("68.423498 mm")),
    Sketcher.Constraint("DistanceX", 8, 3, 3, 3, Q("16.566901 mm")),
    Sketcher.Constraint("DistanceY", 7, 2, 8, 3, Q("10.278301 mm")),
    Sketcher.Constraint("Distance", 29, Q("12.457281 mm")),
    Sketcher.Constraint("DistanceX", 1, 2, 1, 1, Q("42.422282 mm")),
    Sketcher.Constraint("DistanceX", 12, 1, 12, 2, Q("52.022757 mm")),
    Sketcher.Constraint("DistanceX", 22, 2, 22, 1, Q("26.199592 mm")),
    Sketcher.Constraint("DistanceX", 28, 1, 28, 2, Q("63.695067 mm")),
    Sketcher.Constraint("DistanceY", 7, 1, 7, 2, Q("53.659973 mm")),
    Sketcher.Constraint("DistanceX", -1, 1, 0, 3, Q("41.56858 mm")),
    Sketcher.Constraint("DistanceX", -1, 1, 18, 1, Q("39.91845 mm")),
    Sketcher.Constraint("DistanceX", -1, 1, 19, 2, Q("30.564709 mm")),
])
pad4 = body.newObject("PartDesign::Pad", "Pad003")
pad4.Profile = sketch6
pad4.Length = 16

# Sketch on XZ plane
sketch7 = body.newObject("Sketcher::SketchObject", "Sketch006")
sketch7.AttachmentSupport = (doc.getObject("XZ_Plane"), [""])
sketch7.MapMode = "FlatFace"
sketch7.AttachmentOffset = App.Placement(V(0, 0, -29.35), App.Rotation())
sketch7.addGeometry(Part.LineSegment(V(-42, -37, 0), V(-42, -36.3, 0)), False)  # 0
sketch7.addGeometry(Part.ArcOfCircle(Part.Circle(V(-55.1, -39.9, 0), V(0, 0, 1), 13.6), math.radians(15), math.radians(68)), False)  # 1
sketch7.addGeometry(Part.LineSegment(V(-50, -27.3, 0), V(-50, 26.3, 0)), False)  # 2
sketch7.addGeometry(Part.ArcOfCircle(Part.Circle(V(-52.6, 36.6, 0), V(0, 0, 1), 10.6), math.radians(-76), math.radians(2)), False)  # 3
sketch7.addGeometry(Part.ArcOfCircle(Part.Circle(V(-37, 37, 0), V(0, 0, 1), 5), math.radians(90), math.radians(180)), False)  # 4
sketch7.addGeometry(Part.ArcOfCircle(Part.Circle(V(-38.8, 57.2, 0), V(0, 0, 1), 15.3), math.radians(-83), math.radians(-28)), False)  # 5
sketch7.addGeometry(Part.LineSegment(V(-25.3, 50, 0), V(26.7, 50, 0)), False)  # 6
sketch7.addGeometry(Part.ArcOfCircle(Part.Circle(V(38.3, 54.3, 0), V(0, 0, 1), 12.4), math.radians(-160), math.radians(-96)), False)  # 7
sketch7.addGeometry(Part.ArcOfCircle(Part.Circle(V(37, 37, 0), V(0, 0, 1), 5), math.radians(0), math.radians(90)), False)  # 8
sketch7.addGeometry(Part.ArcOfCircle(Part.Circle(V(68.4, 42.9, 0), V(0, 0, 1), 27.1), math.radians(-167), math.radians(-133)), False)  # 9
sketch7.addGeometry(Part.LineSegment(V(50, 23, 0), V(50, -20.5, 0)), False)  # 10
sketch7.addGeometry(Part.ArcOfCircle(Part.Circle(V(102, -55.9, 0), V(0, 0, 1), 62.9), math.radians(145.75), math.radians(162.5)), False)  # 11
sketch7.addGeometry(Part.ArcOfCircle(Part.Circle(V(37, -37, 0), V(0, 0, 1), 5), math.radians(-54), math.radians(0)), False)  # 12
sketch7.addGeometry(Part.LineSegment(V(39.9, -41.1, 0), V(30.6, -43.2, 0)), False)  # 13
sketch7.addGeometry(Part.ArcOfCircle(Part.Circle(V(41.6, -70.7, 0), V(0, 0, 1), 29.7), math.radians(112), math.radians(136)), False)  # 14
sketch7.addGeometry(Part.LineSegment(V(20.4, -50, 0), V(-22.1, -50, 0)), False)  # 15
sketch7.addGeometry(Part.ArcOfCircle(Part.Circle(V(-36, -58.1, 0), V(0, 0, 1), 16.2), math.radians(30), math.radians(93)), False)  # 16
sketch7.addGeometry(Part.ArcOfCircle(Part.Circle(V(-37, -37, 0), V(0, 0, 1), 5), math.radians(180), math.radians(270)), False)  # 17
add_polygon(sketch7, [(-17.5, -10), (-32.5, -10), (-32.5, -26), (-17.5, -26)])  # lines 18-21
sketch7.addGeometry(Part.Circle(V(28, -23, 0), V(0, 0, 1), 4), False)  # 22
sketch7.addConstraint([
    Sketcher.Constraint("Coincident", 0, 2, 1, 1),
    Sketcher.Constraint("Coincident", 1, 2, 2, 1),
    Sketcher.Constraint("Coincident", 2, 2, 3, 1),
    Sketcher.Constraint("Coincident", 3, 2, 4, 2),
    Sketcher.Constraint("Coincident", 4, 1, 5, 1),
    Sketcher.Constraint("Coincident", 5, 2, 6, 1),
    Sketcher.Constraint("Coincident", 6, 2, 7, 1),
    Sketcher.Constraint("Coincident", 7, 2, 8, 2),
    Sketcher.Constraint("Coincident", 8, 1, 9, 1),
    Sketcher.Constraint("Coincident", 9, 2, 10, 1),
    Sketcher.Constraint("Coincident", 10, 2, 11, 1),
    Sketcher.Constraint("Coincident", 11, 2, 12, 2),
    Sketcher.Constraint("Coincident", 12, 1, 13, 1),
    Sketcher.Constraint("Coincident", 13, 2, 14, 1),
    Sketcher.Constraint("Coincident", 14, 2, 15, 1),
    Sketcher.Constraint("Coincident", 15, 2, 16, 1),
    Sketcher.Constraint("Coincident", 16, 2, 17, 2),
    Sketcher.Constraint("Tangent", 17, 1, 0, 1),
    Sketcher.Constraint("Vertical", 0),
    Sketcher.Constraint("Vertical", 2),
    Sketcher.Constraint("Horizontal", 6),
    Sketcher.Constraint("Vertical", 10),
    Sketcher.Constraint("Horizontal", 15),
    Sketcher.Constraint("Horizontal", 18),
    Sketcher.Constraint("Vertical", 19),
    Sketcher.Constraint("Horizontal", 20),
    Sketcher.Constraint("Vertical", 21),
    Sketcher.Constraint("Equal", 4, 8),
    Sketcher.Constraint("Equal", 8, 12),
    Sketcher.Constraint("Equal", 12, 17),
    Sketcher.Constraint("Symmetric", 4, 3, 12, 3, -1, 1),
    Sketcher.Constraint("Symmetric", 8, 3, 17, 3, -1, 1),
    Sketcher.Constraint("Symmetric", 4, 3, 8, 3, -2),
    Sketcher.Constraint("Horizontal", 8, 3, 3, 2),
    Sketcher.Constraint("Horizontal", 3, 2, 8, 1),
    Sketcher.Constraint("Horizontal", 17, 3, 11, 2),
    Sketcher.Constraint("Vertical", 17, 3, 4, 1),
    Sketcher.Constraint("Vertical", 12, 3, 7, 2),
    Sketcher.Constraint("Vertical", 4, 1, 16, 2),
    Sketcher.Constraint("Diameter", 22, Q("8 mm")),
    Sketcher.Constraint("Radius", 4, Q("5 mm")),
    Sketcher.Constraint("DistanceX", 18, 2, 18, 1, Q("15 mm")),
    Sketcher.Constraint("DistanceY", 19, 2, 19, 1, Q("16 mm")),
    Sketcher.Constraint("DistanceX", 4, 3, -1, 1, Q("37 mm")),
    Sketcher.Constraint("DistanceY", -1, 1, 4, 3, Q("37 mm")),
    Sketcher.Constraint("DistanceX", -1, 1, 22, 3, Q("28 mm")),
    Sketcher.Constraint("DistanceY", 22, 3, -1, 1, Q("23 mm")),
    Sketcher.Constraint("DistanceX", 1, 2, -1, 1, Q("50 mm")),
    Sketcher.Constraint("DistanceY", -1, 1, 5, 2, Q("50 mm")),
    Sketcher.Constraint("DistanceX", -1, 1, 9, 2, Q("50 mm")),
    Sketcher.Constraint("DistanceY", 14, 2, -1, 1, Q("50 mm")),
    Sketcher.Constraint("DistanceY", 18, 2, -1, 1, Q("10 mm")),
    Sketcher.Constraint("DistanceX", 18, 2, -1, 1, Q("32.5 mm")),
    Sketcher.Constraint("Radius", 11, Q("62.915299 mm")),
    Sketcher.Constraint("Radius", 7, Q("12.417291 mm")),
    Sketcher.Constraint("Radius", 14, Q("29.654651 mm")),
    Sketcher.Constraint("Radius", 16, Q("16.17709 mm")),
    Sketcher.Constraint("DistanceY", 0, 1, 0, 2, Q("0.6648 mm")),
    Sketcher.Constraint("Radius", 1, Q("13.550528 mm")),
    Sketcher.Constraint("Radius", 3, Q("10.600183 mm")),
    Sketcher.Constraint("Radius", 5, Q("15.272548 mm")),
    Sketcher.Constraint("Radius", 9, Q("27.066848 mm")),
    Sketcher.Constraint("DistanceY", 10, 2, 10, 1, Q("43.546052 mm")),
    Sketcher.Constraint("DistanceX", -1, 1, 9, 3, Q("68.423498 mm")),
    Sketcher.Constraint("DistanceX", 3, 3, 16, 3, Q("16.566901 mm")),
    Sketcher.Constraint("DistanceY", 2, 2, 3, 3, Q("10.278301 mm")),
    Sketcher.Constraint("DistanceX", 6, 1, 6, 2, Q("52.022757 mm")),
    Sketcher.Constraint("DistanceX", 15, 2, 15, 1, Q("42.422282 mm")),
    Sketcher.Constraint("DistanceY", 2, 1, 2, 2, Q("53.659973 mm")),
    Sketcher.Constraint("DistanceY", -1, 1, 5, 3, Q("57.164242 mm")),
    Sketcher.Constraint("DistanceX", -1, 1, 14, 3, Q("41.56858 mm")),
    Sketcher.Constraint("DistanceX", -1, 1, 12, 1, Q("39.91845 mm")),
    Sketcher.Constraint("DistanceX", -1, 1, 13, 2, Q("30.564709 mm")),
])
pad5 = body.newObject("PartDesign::Pad", "Pad004")
pad5.Profile = sketch7
pad5.Length = 2

# Sketch on XZ plane
sketch8 = body.newObject("Sketcher::SketchObject", "Sketch007")
sketch8.AttachmentSupport = (doc.getObject("XZ_Plane"), [""])
sketch8.MapMode = "FlatFace"
add_polygon(sketch8, [(-50, 50), (-50, -50), (50, -50), (50, 50)])  # lines 0-3
sketch8.addGeometry(Part.Circle(V(-35, -46.8, 0), V(0, 0, 1), 1.7), False)  # 4
sketch8.addGeometry(Part.Circle(V(-46.8, -35, 0), V(0, 0, 1), 1.7), False)  # 5
sketch8.addGeometry(Part.Circle(V(35, -46.8, 0), V(0, 0, 1), 1.7), False)  # 6
sketch8.addGeometry(Part.Circle(V(46.8, -35, 0), V(0, 0, 1), 1.7), False)  # 7
sketch8.addGeometry(Part.Circle(V(-46.8, 35, 0), V(0, 0, 1), 1.7), False)  # 8
sketch8.addGeometry(Part.Circle(V(-35, 46.8, 0), V(0, 0, 1), 1.7), False)  # 9
sketch8.addGeometry(Part.LineSegment(V(-40, -37, 0), V(-40, 37, 0)), False)  # 10
sketch8.addGeometry(Part.ArcOfCircle(Part.Circle(V(-37, 37, 0), V(0, 0, 1), 3), math.radians(90), math.radians(180)), False)  # 11
sketch8.addGeometry(Part.LineSegment(V(-37, 40, 0), V(37, 40, 0)), False)  # 12
sketch8.addGeometry(Part.ArcOfCircle(Part.Circle(V(37, 37, 0), V(0, 0, 1), 3), math.radians(0), math.radians(90)), False)  # 13
sketch8.addGeometry(Part.LineSegment(V(40, 37, 0), V(40, -37, 0)), False)  # 14
sketch8.addGeometry(Part.ArcOfCircle(Part.Circle(V(37, -37, 0), V(0, 0, 1), 3), math.radians(-90), math.radians(0)), False)  # 15
sketch8.addGeometry(Part.LineSegment(V(37, -40, 0), V(-37, -40, 0)), False)  # 16
sketch8.addGeometry(Part.ArcOfCircle(Part.Circle(V(-37, -37, 0), V(0, 0, 1), 3), math.radians(180), math.radians(270)), False)  # 17
sketch8.addGeometry(Part.Circle(V(46.8, 35, 0), V(0, 0, 1), 1.7), False)  # 18
sketch8.addGeometry(Part.Circle(V(35, 46.8, 0), V(0, 0, 1), 1.7), False)  # 19
sketch8.addConstraint([
    Sketcher.Constraint("Tangent", 10, 2, 11, 2),
    Sketcher.Constraint("Tangent", 11, 1, 12, 1),
    Sketcher.Constraint("Tangent", 12, 2, 13, 2),
    Sketcher.Constraint("Tangent", 13, 1, 14, 1),
    Sketcher.Constraint("Tangent", 14, 2, 15, 2),
    Sketcher.Constraint("Tangent", 15, 1, 16, 1),
    Sketcher.Constraint("Tangent", 16, 2, 17, 2),
    Sketcher.Constraint("Tangent", 17, 1, 10, 1),
    Sketcher.Constraint("Vertical", 0),
    Sketcher.Constraint("Horizontal", 1),
    Sketcher.Constraint("Vertical", 2),
    Sketcher.Constraint("Horizontal", 3),
    Sketcher.Constraint("Vertical", 10),
    Sketcher.Constraint("Horizontal", 12),
    Sketcher.Constraint("Vertical", 14),
    Sketcher.Constraint("Horizontal", 16),
    Sketcher.Constraint("Equal", 4, 5),
    Sketcher.Constraint("Equal", 5, 6),
    Sketcher.Constraint("Equal", 6, 7),
    Sketcher.Constraint("Equal", 7, 8),
    Sketcher.Constraint("Equal", 8, 9),
    Sketcher.Constraint("Equal", 11, 13),
    Sketcher.Constraint("Equal", 13, 15),
    Sketcher.Constraint("Equal", 15, 17),
    Sketcher.Constraint("Equal", 9, 18),
    Sketcher.Constraint("Equal", 18, 19),
    Sketcher.Constraint("Symmetric", 7, 3, 8, 3, -1, 1),
    Sketcher.Constraint("Symmetric", 6, 3, 9, 3, -1, 1),
    Sketcher.Constraint("Symmetric", 11, 3, 15, 3, -1, 1),
    Sketcher.Constraint("Symmetric", 5, 3, 18, 3, -1, 1),
    Sketcher.Constraint("Symmetric", 4, 3, 19, 3, -1, 1),
    Sketcher.Constraint("Symmetric", 0, 2, 2, 2, -1, 1),
    Sketcher.Constraint("Symmetric", 4, 3, 6, 3, -2),
    Sketcher.Constraint("Symmetric", 5, 3, 7, 3, -2),
    Sketcher.Constraint("Equal", 3, 0),
    Sketcher.Constraint("Equal", 16, 10),
    Sketcher.Constraint("Radius", 11, Q("3 mm")),
    Sketcher.Constraint("Diameter", 4, Q("3.4 mm")),
    Sketcher.Constraint("DistanceX", 1, 1, 1, 2, Q("100 mm")),
    Sketcher.Constraint("DistanceX", 12, 1, 12, 2, Q("74 mm")),
    Sketcher.Constraint("DistanceX", 4, 3, -1, 1, Q("35 mm")),
    Sketcher.Constraint("DistanceY", 5, 3, -1, 1, Q("35 mm")),
    Sketcher.Constraint("DistanceX", 5, 3, 7, 3, Q("93.65 mm")),
    Sketcher.Constraint("DistanceY", 4, 3, 9, 3, Q("93.65 mm")),
])
pocket2 = body.newObject("PartDesign::Pocket", "Pocket001")
pocket2.Profile = sketch8
pocket2.Length = 5.35

# Sketch on XZ plane
sketch9 = body.newObject("Sketcher::SketchObject", "Sketch008")
sketch9.AttachmentSupport = (doc.getObject("XZ_Plane"), [""])
sketch9.MapMode = "FlatFace"
sketch9.AttachmentOffset = App.Placement(V(0, 0, -6.35), App.Rotation())
sketch9.addGeometry([
    Part.LineSegment(V(10.8, 40, 0), V(1.6, 40, 0)),  # 0
    Part.LineSegment(V(1.6, 40, 0), V(1.6, 30.1, 0)),  # 1
    Part.ArcOfCircle(Part.Circle(V(6.2, 30.1, 0), V(0, 0, 1), 4.6), math.radians(180), math.radians(360)),  # 2
    Part.LineSegment(V(10.8, 30.1, 0), V(10.8, 40, 0)),  # 3
    Part.LineSegment(V(39.1, -39.1, 0), V(23.8, -24.6, 0)),  # 4
    Part.ArcOfCircle(Part.Circle(V(20.7, -27.9, 0), V(0, 0, 1), 4.6), math.radians(46), math.radians(226)),  # 5
    Part.LineSegment(V(17.5, -31.3, 0), V(26.7, -40, 0)),  # 6
    Part.LineSegment(V(26.7, -40, 0), V(37, -40, 0)),  # 7
    Part.ArcOfCircle(Part.Circle(V(37, -37, 0), V(0, 0, 1), 3), math.radians(-90), math.radians(-45)),  # 8
], False)
sketch9.addConstraint([
    Sketcher.Constraint("Coincident", 0, 2, 1, 1),
    Sketcher.Constraint("Tangent", 1, 2, 2, 1),
    Sketcher.Constraint("Tangent", 2, 2, 3, 1),
    Sketcher.Constraint("Coincident", 3, 2, 0, 1),
    Sketcher.Constraint("Tangent", 4, 2, 5, 1),
    Sketcher.Constraint("Tangent", 5, 2, 6, 1),
    Sketcher.Constraint("Coincident", 6, 2, 7, 1),
    Sketcher.Constraint("Tangent", 7, 2, 8, 1),
    Sketcher.Constraint("Coincident", 8, 2, 4, 1),
    Sketcher.Constraint("Horizontal", 0),
    Sketcher.Constraint("Vertical", 1),
    Sketcher.Constraint("Vertical", 3),
    Sketcher.Constraint("Horizontal", 7),
    Sketcher.Constraint("Equal", 2, 5),
    Sketcher.Constraint("Radius", 8, Q("3 mm")),
    Sketcher.Constraint("Radius", 2, Q("4.6 mm")),
    Sketcher.Constraint("DistanceX", -1, 1, 8, 3, Q("37 mm")),
    Sketcher.Constraint("DistanceY", 8, 3, -1, 1, Q("37 mm")),
    Sketcher.Constraint("DistanceY", -1, 1, 0, 2, Q("40 mm")),
    Sketcher.Constraint("DistanceY", 1, 2, 1, 1, Q("9.861841 mm")),
    Sketcher.Constraint("Distance", 6, Q("12.67454 mm")),
    Sketcher.Constraint("DistanceX", 7, 1, 7, 2, Q("10.304933 mm")),
    Sketcher.Constraint("DistanceX", -1, 1, 5, 3, Q("20.671132 mm")),
    Sketcher.Constraint("DistanceX", -1, 1, 4, 2, Q("23.839549 mm")),
    Sketcher.Constraint("DistanceX", 2, 2, 4, 2, Q("13.039142 mm")),
])
pocket3 = body.newObject("PartDesign::Pocket", "Pocket002")
pocket3.Profile = sketch9
pocket3.Length = 5

doc.recompute()
